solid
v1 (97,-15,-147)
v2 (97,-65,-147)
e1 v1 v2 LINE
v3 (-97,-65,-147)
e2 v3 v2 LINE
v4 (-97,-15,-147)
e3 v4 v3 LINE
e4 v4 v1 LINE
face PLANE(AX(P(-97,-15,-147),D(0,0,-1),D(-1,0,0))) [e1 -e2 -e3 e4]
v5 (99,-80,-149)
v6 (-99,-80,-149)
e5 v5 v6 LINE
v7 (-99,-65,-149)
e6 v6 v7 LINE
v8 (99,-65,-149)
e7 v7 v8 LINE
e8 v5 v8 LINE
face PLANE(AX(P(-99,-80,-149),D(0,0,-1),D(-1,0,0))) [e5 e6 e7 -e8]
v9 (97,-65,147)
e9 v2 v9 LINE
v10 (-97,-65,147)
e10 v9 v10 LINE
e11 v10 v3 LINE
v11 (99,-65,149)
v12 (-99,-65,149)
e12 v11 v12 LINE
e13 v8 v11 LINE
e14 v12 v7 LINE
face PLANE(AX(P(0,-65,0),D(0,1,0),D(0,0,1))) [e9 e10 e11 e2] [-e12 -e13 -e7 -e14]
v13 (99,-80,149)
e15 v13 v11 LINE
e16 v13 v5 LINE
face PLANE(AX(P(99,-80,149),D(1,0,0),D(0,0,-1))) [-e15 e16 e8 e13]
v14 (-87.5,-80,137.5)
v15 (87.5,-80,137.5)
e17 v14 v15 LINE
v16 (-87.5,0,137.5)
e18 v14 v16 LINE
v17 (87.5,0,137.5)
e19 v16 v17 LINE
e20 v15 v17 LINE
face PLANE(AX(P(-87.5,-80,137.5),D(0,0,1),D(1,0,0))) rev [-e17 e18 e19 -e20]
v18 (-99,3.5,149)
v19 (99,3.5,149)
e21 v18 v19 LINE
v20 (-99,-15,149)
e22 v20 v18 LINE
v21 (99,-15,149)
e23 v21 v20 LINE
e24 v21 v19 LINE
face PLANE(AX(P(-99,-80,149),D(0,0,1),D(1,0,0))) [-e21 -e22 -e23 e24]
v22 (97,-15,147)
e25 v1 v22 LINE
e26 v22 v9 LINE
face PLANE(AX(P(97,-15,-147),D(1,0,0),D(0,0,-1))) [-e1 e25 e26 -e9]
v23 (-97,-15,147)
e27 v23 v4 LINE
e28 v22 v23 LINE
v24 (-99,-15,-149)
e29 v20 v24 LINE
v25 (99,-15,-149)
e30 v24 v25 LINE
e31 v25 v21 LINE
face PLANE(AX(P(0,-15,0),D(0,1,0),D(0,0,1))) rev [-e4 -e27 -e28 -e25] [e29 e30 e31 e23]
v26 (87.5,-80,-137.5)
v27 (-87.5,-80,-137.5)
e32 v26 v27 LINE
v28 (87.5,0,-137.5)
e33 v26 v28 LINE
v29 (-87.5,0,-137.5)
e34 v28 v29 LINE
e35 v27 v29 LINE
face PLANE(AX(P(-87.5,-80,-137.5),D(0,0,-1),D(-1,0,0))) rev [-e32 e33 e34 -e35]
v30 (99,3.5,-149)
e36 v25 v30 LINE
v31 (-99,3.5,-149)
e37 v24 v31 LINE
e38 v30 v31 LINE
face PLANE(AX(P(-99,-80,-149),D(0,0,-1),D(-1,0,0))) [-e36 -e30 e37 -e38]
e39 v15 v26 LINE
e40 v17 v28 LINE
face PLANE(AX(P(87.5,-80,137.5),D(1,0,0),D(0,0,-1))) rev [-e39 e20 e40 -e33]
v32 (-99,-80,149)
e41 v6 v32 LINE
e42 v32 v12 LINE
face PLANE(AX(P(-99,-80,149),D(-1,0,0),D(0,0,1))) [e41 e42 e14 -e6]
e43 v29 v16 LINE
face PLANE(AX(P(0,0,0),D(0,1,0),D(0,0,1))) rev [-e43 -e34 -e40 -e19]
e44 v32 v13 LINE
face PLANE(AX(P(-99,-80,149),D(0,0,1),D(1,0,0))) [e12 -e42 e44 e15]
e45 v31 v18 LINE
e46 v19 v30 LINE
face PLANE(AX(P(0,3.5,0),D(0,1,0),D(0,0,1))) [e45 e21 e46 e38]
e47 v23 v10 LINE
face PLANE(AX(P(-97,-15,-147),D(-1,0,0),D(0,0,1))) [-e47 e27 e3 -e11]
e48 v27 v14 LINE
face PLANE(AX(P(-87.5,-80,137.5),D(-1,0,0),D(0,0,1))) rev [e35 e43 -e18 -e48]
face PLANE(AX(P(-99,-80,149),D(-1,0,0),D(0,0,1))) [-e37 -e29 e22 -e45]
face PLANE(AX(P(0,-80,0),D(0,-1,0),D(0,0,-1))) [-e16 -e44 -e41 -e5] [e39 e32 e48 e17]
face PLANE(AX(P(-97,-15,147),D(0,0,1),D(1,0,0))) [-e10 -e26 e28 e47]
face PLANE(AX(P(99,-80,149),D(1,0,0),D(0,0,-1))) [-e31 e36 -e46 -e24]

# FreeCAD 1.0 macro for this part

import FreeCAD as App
import Part
import Sketcher
from FreeCAD import Vector


def add_polygon(sketch, points):
    """Adds a closed chain of lines whose ends are joined by coincident constraints."""
    first, n = sketch.GeometryCount, len(points)
    for a, b in zip(points, points[1:] + points[:1]):
        sketch.addGeometry(Part.LineSegment(App.Vector(*a, 0), App.Vector(*b, 0)), False)
    for i in range(n):
        sketch.addConstraint(Sketcher.Constraint("Coincident", first + i, 2, first + (i + 1) % n, 1))

doc = App.newDocument("Part")
params = doc.addObject("Spreadsheet::Sheet", "Params")
for row, (alias, value) in enumerate([
    ("sketch1_width", "198 mm"),
    ("sketch1_width2", "175 mm"),
    ("sketch1_height", "298 mm"),
    ("sketch1_height2", "275 mm"),
    ("pad1_length", "80 mm"),
    ("sketch2_width", "198 mm"),
    ("sketch2_height", "298 mm"),
    ("pad2_length", "3.5 mm"),
    ("sketch3_width", "200 mm"),
    ("sketch3_width2", "194 mm"),
    ("sketch3_height", "300 mm"),
    ("sketch3_height2", "294 mm"),
    ("pocket1_length", "50 mm"),
], start=1):
    params.set(f"A{row}", alias)
    params.set(f"B{row}", "=" + value)
    params.setAlias(f"B{row}", alias)

body = doc.addObject("PartDesign::Body", "Body")

sketch1 = body.newObject("Sketcher::SketchObject", "Sketch")
sketch1.AttachmentSupport = (doc.getObject("XZ_Plane"), [""])
sketch1.MapMode = "FlatFace"
add_polygon(sketch1, [(-99, -149), (-99, 149), (99, 149), (99, -149)])
add_polygon(sketch1, [(88, 138), (-88, 138), (-88, -138), (88, -138)])
sketch1.addConstraint([
    Sketcher.Constraint("Vertical", 0),
    Sketcher.Constraint("Horizontal", 1),
    Sketcher.Constraint("Vertical", 2),
    Sketcher.Constraint("Horizontal", 3),
    Sketcher.Constraint("Horizontal", 4),
    Sketcher.Constraint("Vertical", 5),
    Sketcher.Constraint("Horizontal", 6),
    Sketcher.Constraint("Vertical", 7),
    Sketcher.Constraint("Symmetric", 0, 2, 2, 2, -1, 1),
    Sketcher.Constraint("Symmetric", 4, 2, 6, 2, -1, 1),
    Sketcher.Constraint("DistanceX", 1, 1, 1, 2, 198.0),
    Sketcher.Constraint("DistanceX", 4, 2, 4, 1, 175.0),
    Sketcher.Constraint("DistanceY", 0, 1, 0, 2, 298.0),
    Sketcher.Constraint("DistanceY", 5, 2, 5, 1, 275.0),
])
sketch1.setExpression("Constraints[18]", "Params.sketch1_width")
sketch1.setExpression("Constraints[19]", "Params.sketch1_width2")
sketch1.setExpression("Constraints[20]", "Params.sketch1_height")
sketch1.setExpression("Constraints[21]", "Params.sketch1_height2")
pad1 = body.newObject("PartDesign::Pad", "Pad")
pad1.Profile = sketch1
pad1.setExpression("Length", "Params.pad1_length")

sketch2 = body.newObject("Sketcher::SketchObject", "Sketch001")
sketch2.AttachmentSupport = (doc.getObject("XZ_Plane"), [""])
sketch2.MapMode = "FlatFace"
add_polygon(sketch2, [(-99, -149), (-99, 149), (99, 149), (99, -149)])
sketch2.addConstraint([
    Sketcher.Constraint("Vertical", 0),
    Sketcher.Constraint("Horizontal", 1),
    Sketcher.Constraint("Vertical", 2),
    Sketcher.Constraint("Horizontal", 3),
    Sketcher.Constraint("Symmetric", 0, 2, 2, 2, -1, 1),
    Sketcher.Constraint("DistanceX", 1, 1, 1, 2, 198.0),
    Sketcher.Constraint("DistanceY", 0, 1, 0, 2, 298.0),
])
sketch2.setExpression("Constraints[9]", "Params.sketch2_width")
sketch2.setExpression("Constraints[10]", "Params.sketch2_height")
pad2 = body.newObject("PartDesign::Pad", "Pad001")
pad2.Profile = sketch2
pad2.setExpression("Length", "Params.pad2_length")
pad2.Reversed = True

sketch3 = body.newObject("Sketcher::SketchObject", "Sketch002")
sketch3.AttachmentSupport = (doc.getObject("XZ_Plane"), [""])
sketch3.MapMode = "FlatFace"
sketch3.AttachmentOffset = App.Placement(Vector(0, 0, 40), App.Rotation())
add_polygon(sketch3, [(100, -150), (100, 150), (-100, 150), (-100, -150)])
add_polygon(sketch3, [(-97, 147), (97, 147), (97, -147), (-97, -147)])
sketch3.addConstraint([
    Sketcher.Constraint("Vertical", 0),
    Sketcher.Constraint("Horizontal", 1),
    Sketcher.Constraint("Vertical", 2),
    Sketcher.Constraint("Horizontal", 3),
    Sketcher.Constraint("Horizontal", 4),
    Sketcher.Constraint("Vertical", 5),
    Sketcher.Constraint("Horizontal", 6),
    Sketcher.Constraint("Vertical", 7),
    Sketcher.Constraint("Symmetric", 0, 2, 2, 2, -1, 1),
    Sketcher.Constraint("Symmetric", 4, 2, 6, 2, -1, 1),
    Sketcher.Constraint("DistanceX", 1, 2, 1, 1, 200.0),
    Sketcher.Constraint("DistanceX", 4, 1, 4, 2, 194.0),
    Sketcher.Constraint("DistanceY", 0, 1, 0, 2, 300.0),
    Sketcher.Constraint("DistanceY", 5, 2, 5, 1, 294.0),
])
sketch3.setExpression("Constraints[18]", "Params.sketch3_width")
sketch3.setExpression("Constraints[19]", "Params.sketch3_width2")
sketch3.setExpression("Constraints[20]", "Params.sketch3_height")
sketch3.setExpression("Constraints[21]", "Params.sketch3_height2")
pocket1 = body.newObject("PartDesign::Pocket", "Pocket")
pocket1.Profile = sketch3
pocket1.setExpression("Length", "Params.pocket1_length")
pocket1.Midplane = True

doc.recompute()
